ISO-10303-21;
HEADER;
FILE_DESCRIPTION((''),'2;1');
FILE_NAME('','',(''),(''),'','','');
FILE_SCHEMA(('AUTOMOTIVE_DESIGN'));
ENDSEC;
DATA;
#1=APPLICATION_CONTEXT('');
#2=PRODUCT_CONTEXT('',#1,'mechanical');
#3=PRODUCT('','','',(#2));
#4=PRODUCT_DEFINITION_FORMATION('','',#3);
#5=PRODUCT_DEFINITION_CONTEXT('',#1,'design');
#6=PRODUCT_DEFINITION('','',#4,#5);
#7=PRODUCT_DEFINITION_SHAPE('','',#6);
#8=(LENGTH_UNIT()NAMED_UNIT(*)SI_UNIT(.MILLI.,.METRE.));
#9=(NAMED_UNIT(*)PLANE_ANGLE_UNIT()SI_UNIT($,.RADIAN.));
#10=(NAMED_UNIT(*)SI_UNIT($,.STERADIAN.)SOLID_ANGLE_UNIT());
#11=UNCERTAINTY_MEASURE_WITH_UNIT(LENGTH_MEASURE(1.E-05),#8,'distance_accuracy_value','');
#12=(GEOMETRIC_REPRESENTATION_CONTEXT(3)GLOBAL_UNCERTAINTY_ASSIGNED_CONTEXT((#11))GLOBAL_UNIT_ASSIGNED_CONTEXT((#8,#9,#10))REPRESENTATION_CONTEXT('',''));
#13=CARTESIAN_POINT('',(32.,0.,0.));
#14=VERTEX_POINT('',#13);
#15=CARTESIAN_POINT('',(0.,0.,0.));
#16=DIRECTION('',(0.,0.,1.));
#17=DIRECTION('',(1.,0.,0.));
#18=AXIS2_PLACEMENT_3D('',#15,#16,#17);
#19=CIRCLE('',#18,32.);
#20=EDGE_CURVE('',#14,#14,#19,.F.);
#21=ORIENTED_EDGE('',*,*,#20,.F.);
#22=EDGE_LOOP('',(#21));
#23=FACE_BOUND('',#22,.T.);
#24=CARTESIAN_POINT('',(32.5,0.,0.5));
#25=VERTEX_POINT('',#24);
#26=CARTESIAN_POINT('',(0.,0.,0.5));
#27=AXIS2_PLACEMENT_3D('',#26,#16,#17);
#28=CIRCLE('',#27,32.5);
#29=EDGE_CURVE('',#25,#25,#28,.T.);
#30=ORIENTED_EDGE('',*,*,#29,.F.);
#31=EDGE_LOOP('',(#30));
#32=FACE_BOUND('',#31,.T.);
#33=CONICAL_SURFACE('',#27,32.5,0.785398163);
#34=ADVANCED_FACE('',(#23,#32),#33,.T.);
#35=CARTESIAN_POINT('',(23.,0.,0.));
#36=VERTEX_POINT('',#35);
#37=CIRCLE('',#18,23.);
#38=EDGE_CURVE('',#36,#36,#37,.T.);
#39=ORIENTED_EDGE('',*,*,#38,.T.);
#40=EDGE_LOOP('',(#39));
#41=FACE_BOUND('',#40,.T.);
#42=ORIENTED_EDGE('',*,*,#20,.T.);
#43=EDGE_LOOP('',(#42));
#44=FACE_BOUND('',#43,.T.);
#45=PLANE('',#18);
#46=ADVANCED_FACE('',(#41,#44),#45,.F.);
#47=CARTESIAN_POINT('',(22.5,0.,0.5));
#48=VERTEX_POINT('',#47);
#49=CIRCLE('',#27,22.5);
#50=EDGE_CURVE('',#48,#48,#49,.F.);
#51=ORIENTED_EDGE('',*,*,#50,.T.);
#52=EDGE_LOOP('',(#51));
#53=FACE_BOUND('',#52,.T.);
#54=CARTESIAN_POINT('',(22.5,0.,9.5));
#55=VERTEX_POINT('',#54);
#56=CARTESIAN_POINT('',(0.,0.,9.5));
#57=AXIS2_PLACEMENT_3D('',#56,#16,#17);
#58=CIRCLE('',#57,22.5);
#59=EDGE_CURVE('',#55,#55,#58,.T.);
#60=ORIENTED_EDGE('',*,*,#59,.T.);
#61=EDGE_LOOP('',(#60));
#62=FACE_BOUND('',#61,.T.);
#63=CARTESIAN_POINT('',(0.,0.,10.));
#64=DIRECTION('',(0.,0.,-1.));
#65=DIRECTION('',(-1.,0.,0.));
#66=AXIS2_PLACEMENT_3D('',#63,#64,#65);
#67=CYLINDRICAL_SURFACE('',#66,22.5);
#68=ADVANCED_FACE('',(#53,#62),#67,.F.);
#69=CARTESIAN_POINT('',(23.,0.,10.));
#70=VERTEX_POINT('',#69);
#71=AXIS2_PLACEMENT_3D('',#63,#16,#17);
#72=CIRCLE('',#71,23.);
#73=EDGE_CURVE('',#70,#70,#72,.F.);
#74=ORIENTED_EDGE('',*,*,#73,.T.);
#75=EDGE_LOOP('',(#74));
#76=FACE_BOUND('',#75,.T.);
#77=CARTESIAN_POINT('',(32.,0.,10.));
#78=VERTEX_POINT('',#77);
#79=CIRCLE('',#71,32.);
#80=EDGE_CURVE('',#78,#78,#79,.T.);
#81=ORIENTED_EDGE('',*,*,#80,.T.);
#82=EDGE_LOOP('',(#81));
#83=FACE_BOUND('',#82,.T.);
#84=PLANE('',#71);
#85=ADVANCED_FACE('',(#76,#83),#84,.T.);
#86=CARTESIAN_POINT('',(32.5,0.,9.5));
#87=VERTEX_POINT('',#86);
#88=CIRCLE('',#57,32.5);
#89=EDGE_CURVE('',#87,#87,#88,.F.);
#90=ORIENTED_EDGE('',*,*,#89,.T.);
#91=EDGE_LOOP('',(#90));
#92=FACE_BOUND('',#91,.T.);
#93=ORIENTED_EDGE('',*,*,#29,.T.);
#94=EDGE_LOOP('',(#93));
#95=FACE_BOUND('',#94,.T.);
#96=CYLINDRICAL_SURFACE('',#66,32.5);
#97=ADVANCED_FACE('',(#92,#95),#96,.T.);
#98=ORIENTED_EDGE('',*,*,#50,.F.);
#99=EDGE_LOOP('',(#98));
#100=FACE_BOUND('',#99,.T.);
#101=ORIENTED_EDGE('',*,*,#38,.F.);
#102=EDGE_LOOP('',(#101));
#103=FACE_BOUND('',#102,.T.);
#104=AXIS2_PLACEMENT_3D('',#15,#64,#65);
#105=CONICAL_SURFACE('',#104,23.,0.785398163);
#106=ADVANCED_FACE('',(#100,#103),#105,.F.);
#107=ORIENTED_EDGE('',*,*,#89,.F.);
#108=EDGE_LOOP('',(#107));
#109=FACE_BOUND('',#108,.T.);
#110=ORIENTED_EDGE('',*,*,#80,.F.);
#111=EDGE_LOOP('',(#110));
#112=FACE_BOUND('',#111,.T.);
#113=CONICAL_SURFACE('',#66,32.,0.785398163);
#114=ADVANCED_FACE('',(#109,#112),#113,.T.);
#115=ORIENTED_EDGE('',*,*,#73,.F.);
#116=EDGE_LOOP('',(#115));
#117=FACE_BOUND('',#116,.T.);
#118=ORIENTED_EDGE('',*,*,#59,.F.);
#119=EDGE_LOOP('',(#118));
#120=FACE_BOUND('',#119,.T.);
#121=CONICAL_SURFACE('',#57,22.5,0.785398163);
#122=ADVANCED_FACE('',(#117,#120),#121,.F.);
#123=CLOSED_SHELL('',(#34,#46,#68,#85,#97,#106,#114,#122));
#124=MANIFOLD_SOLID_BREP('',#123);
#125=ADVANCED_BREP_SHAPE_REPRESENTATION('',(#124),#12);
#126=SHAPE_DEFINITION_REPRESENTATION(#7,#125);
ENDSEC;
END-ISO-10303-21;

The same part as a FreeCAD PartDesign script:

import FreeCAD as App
import Part
import Sketcher

V = App.Vector


def edges_at(feature, points):
    """Names of the edges that pass closest to the given points."""
    edges = feature.Shape.Edges
    near = lambda p: min(range(len(edges)), key=lambda i: edges[i].distToShape(Part.Vertex(*p))[0])
    return sorted({f"Edge{near(p) + 1}" for p in points})

doc = App.newDocument("Part")
body = doc.addObject("PartDesign::Body", "Body")

# Sketch on XY plane
sketch1 = body.newObject("Sketcher::SketchObject", "Sketch")
sketch1.AttachmentSupport = (doc.getObject("XY_Plane"), [""])
sketch1.MapMode = "FlatFace"
sketch1.addGeometry([
    Part.Circle(V(0, 0, 0), V(0, 0, 1), 32),
    Part.Circle(V(0, 0, 0), V(0, 0, 1), 22),
], False)
sketch1.addConstraint([
    Sketcher.Constraint("Coincident", 0, 3, -1, 1),
    Sketcher.Constraint("Coincident", 1, 3, -1, 1),
    Sketcher.Constraint("Diameter", 0, 65.0),
    Sketcher.Constraint("Diameter", 1, 45.0),
])
pad1 = body.newObject("PartDesign::Pad", "Pad")
pad1.Profile = sketch1
pad1.Length = 10
doc.recompute()

chamfer = body.newObject("PartDesign::Chamfer", "Chamfer")
chamfer.Base = (pad1, edges_at(pad1, [
    (-32.5, 0, 0),
    (-32.5, 0, 10),
    (-22.5, 0, 0),
    (-22.5, 0, 10),
]))
chamfer.Size = 0.5

doc.recompute()
